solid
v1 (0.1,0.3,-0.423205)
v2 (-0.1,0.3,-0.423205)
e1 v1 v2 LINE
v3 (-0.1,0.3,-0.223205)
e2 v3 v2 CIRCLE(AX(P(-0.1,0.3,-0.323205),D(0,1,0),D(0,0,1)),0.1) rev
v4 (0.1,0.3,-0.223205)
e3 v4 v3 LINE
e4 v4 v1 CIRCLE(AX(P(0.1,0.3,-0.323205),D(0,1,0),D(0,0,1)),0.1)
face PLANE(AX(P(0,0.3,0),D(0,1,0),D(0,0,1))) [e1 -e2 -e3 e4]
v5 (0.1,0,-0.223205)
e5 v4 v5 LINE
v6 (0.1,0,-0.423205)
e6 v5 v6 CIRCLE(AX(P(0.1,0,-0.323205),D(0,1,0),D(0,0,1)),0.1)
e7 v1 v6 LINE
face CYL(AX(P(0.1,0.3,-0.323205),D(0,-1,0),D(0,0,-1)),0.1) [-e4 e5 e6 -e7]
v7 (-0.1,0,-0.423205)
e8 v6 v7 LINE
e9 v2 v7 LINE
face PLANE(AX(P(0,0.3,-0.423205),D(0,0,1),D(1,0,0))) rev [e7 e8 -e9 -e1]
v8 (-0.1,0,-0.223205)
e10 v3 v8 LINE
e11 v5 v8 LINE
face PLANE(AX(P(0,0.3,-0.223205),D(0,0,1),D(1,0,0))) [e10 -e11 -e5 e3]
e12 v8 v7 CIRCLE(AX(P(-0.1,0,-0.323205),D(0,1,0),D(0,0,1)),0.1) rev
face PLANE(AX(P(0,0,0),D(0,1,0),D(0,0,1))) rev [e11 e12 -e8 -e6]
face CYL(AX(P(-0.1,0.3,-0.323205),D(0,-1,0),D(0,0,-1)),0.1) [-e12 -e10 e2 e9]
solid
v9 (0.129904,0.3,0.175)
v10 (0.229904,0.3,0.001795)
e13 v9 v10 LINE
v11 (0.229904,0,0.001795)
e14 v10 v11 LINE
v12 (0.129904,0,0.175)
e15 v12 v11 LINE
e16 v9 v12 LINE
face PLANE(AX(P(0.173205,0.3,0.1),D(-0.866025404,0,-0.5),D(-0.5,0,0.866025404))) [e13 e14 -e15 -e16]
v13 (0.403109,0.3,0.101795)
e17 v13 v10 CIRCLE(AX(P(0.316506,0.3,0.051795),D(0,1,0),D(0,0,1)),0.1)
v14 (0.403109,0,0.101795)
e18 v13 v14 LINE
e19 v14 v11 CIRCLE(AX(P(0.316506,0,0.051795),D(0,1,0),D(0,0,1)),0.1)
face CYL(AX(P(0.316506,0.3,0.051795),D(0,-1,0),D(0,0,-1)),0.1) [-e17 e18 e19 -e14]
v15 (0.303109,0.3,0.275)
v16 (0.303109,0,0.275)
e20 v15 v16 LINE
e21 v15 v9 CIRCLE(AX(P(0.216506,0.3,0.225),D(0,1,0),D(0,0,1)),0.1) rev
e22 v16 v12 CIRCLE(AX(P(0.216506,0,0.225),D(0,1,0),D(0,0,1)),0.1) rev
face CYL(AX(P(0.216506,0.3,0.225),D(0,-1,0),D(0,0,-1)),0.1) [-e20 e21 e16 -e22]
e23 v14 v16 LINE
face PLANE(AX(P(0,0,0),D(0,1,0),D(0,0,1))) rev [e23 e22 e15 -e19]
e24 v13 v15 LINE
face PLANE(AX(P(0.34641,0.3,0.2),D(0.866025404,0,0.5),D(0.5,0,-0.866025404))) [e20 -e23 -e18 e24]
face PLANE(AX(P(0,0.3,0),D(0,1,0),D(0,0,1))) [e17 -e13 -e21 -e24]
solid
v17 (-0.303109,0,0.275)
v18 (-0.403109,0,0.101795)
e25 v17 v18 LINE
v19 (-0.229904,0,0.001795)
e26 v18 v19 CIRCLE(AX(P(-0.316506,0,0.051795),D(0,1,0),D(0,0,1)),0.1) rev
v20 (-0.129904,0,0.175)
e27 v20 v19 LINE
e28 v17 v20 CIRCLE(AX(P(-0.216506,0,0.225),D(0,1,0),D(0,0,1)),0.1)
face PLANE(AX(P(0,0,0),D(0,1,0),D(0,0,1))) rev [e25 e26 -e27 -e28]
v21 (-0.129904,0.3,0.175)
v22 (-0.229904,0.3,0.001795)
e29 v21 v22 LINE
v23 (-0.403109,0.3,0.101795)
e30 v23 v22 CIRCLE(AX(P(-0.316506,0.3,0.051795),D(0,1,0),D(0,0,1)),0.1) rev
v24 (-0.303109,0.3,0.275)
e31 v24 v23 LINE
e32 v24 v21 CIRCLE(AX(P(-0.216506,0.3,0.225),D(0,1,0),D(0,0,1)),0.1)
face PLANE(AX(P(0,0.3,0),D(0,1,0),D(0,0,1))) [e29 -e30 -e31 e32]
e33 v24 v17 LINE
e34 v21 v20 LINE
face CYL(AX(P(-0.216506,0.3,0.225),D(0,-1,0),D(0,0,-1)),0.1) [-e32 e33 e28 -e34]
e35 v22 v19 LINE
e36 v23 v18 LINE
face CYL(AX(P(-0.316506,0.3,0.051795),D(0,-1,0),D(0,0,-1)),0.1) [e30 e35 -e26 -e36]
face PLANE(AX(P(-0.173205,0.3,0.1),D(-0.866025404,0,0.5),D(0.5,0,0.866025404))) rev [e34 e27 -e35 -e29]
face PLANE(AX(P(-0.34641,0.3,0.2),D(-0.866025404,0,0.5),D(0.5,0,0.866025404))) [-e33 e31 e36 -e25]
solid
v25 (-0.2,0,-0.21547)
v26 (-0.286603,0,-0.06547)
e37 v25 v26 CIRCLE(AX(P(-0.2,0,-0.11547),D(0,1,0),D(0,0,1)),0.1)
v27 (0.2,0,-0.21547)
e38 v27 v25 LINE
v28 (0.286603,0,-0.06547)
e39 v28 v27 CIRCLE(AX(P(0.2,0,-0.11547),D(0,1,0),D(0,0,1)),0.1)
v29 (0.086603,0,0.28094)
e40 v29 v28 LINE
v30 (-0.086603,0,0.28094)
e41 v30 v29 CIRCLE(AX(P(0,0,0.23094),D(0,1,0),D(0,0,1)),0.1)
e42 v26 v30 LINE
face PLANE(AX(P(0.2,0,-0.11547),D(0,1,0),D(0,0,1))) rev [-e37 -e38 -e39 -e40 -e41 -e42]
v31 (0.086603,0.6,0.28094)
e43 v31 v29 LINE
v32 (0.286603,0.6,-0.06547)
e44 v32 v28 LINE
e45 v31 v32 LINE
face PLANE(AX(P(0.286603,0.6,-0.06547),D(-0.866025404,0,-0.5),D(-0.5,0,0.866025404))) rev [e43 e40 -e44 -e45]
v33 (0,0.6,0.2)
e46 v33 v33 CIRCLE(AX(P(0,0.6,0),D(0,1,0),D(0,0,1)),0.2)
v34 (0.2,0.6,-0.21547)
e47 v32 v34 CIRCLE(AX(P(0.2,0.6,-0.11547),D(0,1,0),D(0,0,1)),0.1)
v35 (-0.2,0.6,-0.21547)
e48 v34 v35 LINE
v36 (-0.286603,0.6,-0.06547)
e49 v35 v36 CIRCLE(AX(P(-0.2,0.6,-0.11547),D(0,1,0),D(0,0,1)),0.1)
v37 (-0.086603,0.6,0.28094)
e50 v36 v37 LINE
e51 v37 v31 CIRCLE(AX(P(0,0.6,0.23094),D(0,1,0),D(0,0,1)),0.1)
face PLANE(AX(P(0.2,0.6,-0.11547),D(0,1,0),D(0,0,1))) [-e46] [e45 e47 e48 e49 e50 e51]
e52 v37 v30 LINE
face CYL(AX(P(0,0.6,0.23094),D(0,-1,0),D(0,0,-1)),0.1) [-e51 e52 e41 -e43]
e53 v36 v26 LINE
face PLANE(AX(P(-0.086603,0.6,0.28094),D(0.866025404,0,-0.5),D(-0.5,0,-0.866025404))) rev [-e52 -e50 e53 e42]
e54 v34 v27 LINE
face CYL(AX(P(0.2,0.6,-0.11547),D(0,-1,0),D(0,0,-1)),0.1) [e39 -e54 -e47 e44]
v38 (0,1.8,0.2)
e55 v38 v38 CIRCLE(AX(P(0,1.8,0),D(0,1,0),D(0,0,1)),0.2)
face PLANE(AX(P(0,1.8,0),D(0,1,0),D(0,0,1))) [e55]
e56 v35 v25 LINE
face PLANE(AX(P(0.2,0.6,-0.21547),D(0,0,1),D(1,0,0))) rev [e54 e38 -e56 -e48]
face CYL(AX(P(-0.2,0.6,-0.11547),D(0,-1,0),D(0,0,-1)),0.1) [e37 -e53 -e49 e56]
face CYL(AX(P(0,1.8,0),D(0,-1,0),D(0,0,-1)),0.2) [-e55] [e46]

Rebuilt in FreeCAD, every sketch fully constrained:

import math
import FreeCAD as App
import Part
import Sketcher
from FreeCAD import Vector
Q = App.Units.Quantity

doc = App.newDocument("Part")
body = doc.addObject("PartDesign::Body", "Body")

# Sketch on XZ plane
sketch1 = body.newObject("Sketcher::SketchObject", "Sketch")
sketch1.AttachmentSupport = (doc.getObject("XZ_Plane"), [""])
sketch1.MapMode = "FlatFace"
sketch1.addGeometry([
    Part.LineSegment(Vector(0.09, 0.28, 0), Vector(0.29, -0.07, 0)),  # 0
    Part.ArcOfCircle(Part.Circle(Vector(0.2, -0.12, 0), Vector(0, 0, 1), 0.1), math.radians(-90), math.radians(30)),  # 1
    Part.LineSegment(Vector(0.2, -0.22, 0), Vector(-0.2, -0.22, 0)),  # 2
    Part.ArcOfCircle(Part.Circle(Vector(-0.2, -0.12, 0), Vector(0, 0, 1), 0.1), math.radians(150), math.radians(270)),  # 3
    Part.LineSegment(Vector(-0.29, -0.07, 0), Vector(-0.09, 0.28, 0)),  # 4
    Part.ArcOfCircle(Part.Circle(Vector(0, 0.23, 0), Vector(0, 0, 1), 0.1), math.radians(30), math.radians(150)),  # 5
], False)
sketch1.addConstraint([
    Sketcher.Constraint("Tangent", 0, 2, 1, 2),
    Sketcher.Constraint("Tangent", 1, 1, 2, 1),
    Sketcher.Constraint("Tangent", 2, 2, 3, 2),
    Sketcher.Constraint("Tangent", 3, 1, 4, 1),
    Sketcher.Constraint("Tangent", 4, 2, 5, 2),
    Sketcher.Constraint("Tangent", 5, 1, 0, 1),
    Sketcher.Constraint("Horizontal", 2),
    Sketcher.Constraint("Equal", 1, 3),
    Sketcher.Constraint("Equal", 3, 5),
    Sketcher.Constraint("Symmetric", 0, 2, 3, 1, -2),
    Sketcher.Constraint("Radius", 1, Q("0.1 mm")),
    Sketcher.Constraint("Angle", 0, Q("-60 deg")),
    Sketcher.Constraint("DistanceX", 2, 2, 2, 1, Q("0.4 mm")),
    Sketcher.Constraint("DistanceY", 1, 3, -1, 1, Q("0.11547 mm")),
])
pad1 = body.newObject("PartDesign::Pad", "Pad")
pad1.Profile = sketch1
pad1.Length = 0.6
pad1.Reversed = True

# Sketch on XZ plane
sketch2 = body.newObject("Sketcher::SketchObject", "Sketch001")
sketch2.AttachmentSupport = (doc.getObject("XZ_Plane"), [""])
sketch2.MapMode = "FlatFace"
sketch2.AttachmentOffset = App.Placement(Vector(0, 0, -0.6), App.Rotation())
sketch2.addGeometry(Part.Circle(Vector(0, 0, 0), Vector(0, 0, 1), 0.2), False)
sketch2.addConstraint([
    Sketcher.Constraint("Coincident", 0, 3, -1, 1),
    Sketcher.Constraint("Diameter", 0, Q("0.4 mm")),
])
pad2 = body.newObject("PartDesign::Pad", "Pad001")
pad2.Profile = sketch2
pad2.Length = 1.2
pad2.Reversed = True
body2 = doc.addObject("PartDesign::Body", "Body001")

# Sketch on XZ plane
sketch3 = body2.newObject("Sketcher::SketchObject", "Sketch002")
sketch3.AttachmentSupport = (doc.getObject("XZ_Plane001"), [""])
sketch3.MapMode = "FlatFace"
sketch3.addGeometry([
    Part.LineSegment(Vector(0.3, 0.28, 0), Vector(0.4, 0.1, 0)),
    Part.ArcOfCircle(Part.Circle(Vector(0.32, 0.05, 0), Vector(0, 0, 1), 0.1), math.radians(-150), math.radians(30)),
    Part.LineSegment(Vector(0.23, 0, 0), Vector(0.13, 0.17, 0)),
    Part.ArcOfCircle(Part.Circle(Vector(0.22, 0.23, 0), Vector(0, 0, 1), 0.1), math.radians(30), math.radians(210)),
], False)
sketch3.addConstraint([
    Sketcher.Constraint("Tangent", 0, 2, 1, 2),
    Sketcher.Constraint("Tangent", 1, 1, 2, 1),
    Sketcher.Constraint("Tangent", 2, 2, 3, 2),
    Sketcher.Constraint("Tangent", 3, 1, 0, 1),
    Sketcher.Constraint("Equal", 1, 3),
    Sketcher.Constraint("Radius", 1, Q("0.1 mm")),
    Sketcher.Constraint("Angle", 0, Q("-60 deg")),
    Sketcher.Constraint("Distance", 0, Q("0.2 mm")),
    Sketcher.Constraint("DistanceY", -1, 1, 3, 3, Q("0.225 mm")),
    Sketcher.Constraint("DistanceX", -1, 1, 0, 2, Q("0.403109 mm")),
])
pad3 = body2.newObject("PartDesign::Pad", "Pad002")
pad3.Profile = sketch3
pad3.Length = 0.3
pad3.Reversed = True
body3 = doc.addObject("PartDesign::Body", "Body002")

# Sketch on XZ plane
sketch4 = body3.newObject("Sketcher::SketchObject", "Sketch003")
sketch4.AttachmentSupport = (doc.getObject("XZ_Plane002"), [""])
sketch4.MapMode = "FlatFace"
sketch4.addGeometry([
    Part.LineSegment(Vector(0.1, -0.42, 0), Vector(-0.1, -0.42, 0)),
    Part.ArcOfCircle(Part.Circle(Vector(-0.1, -0.32, 0), Vector(0, 0, 1), 0.1), math.radians(90), math.radians(270)),
    Part.LineSegment(Vector(-0.1, -0.22, 0), Vector(0.1, -0.22, 0)),
    Part.ArcOfCircle(Part.Circle(Vector(0.1, -0.32, 0), Vector(0, 0, 1), 0.1), math.radians(-90), math.radians(90)),
], False)
sketch4.addConstraint([
    Sketcher.Constraint("Tangent", 0, 2, 1, 2),
    Sketcher.Constraint("Tangent", 1, 1, 2, 1),
    Sketcher.Constraint("Tangent", 2, 2, 3, 2),
    Sketcher.Constraint("Tangent", 3, 1, 0, 1),
    Sketcher.Constraint("Horizontal", 0),
    Sketcher.Constraint("Horizontal", 2),
    Sketcher.Constraint("Radius", 1, Q("0.1 mm")),
    Sketcher.Constraint("DistanceX", 0, 2, 0, 1, Q("0.2 mm")),
    Sketcher.Constraint("DistanceX", 1, 3, -1, 1, Q("0.1 mm")),
    Sketcher.Constraint("DistanceY", 1, 3, -1, 1, Q("0.323205 mm")),
])
pad4 = body3.newObject("PartDesign::Pad", "Pad003")
pad4.Profile = sketch4
pad4.Length = 0.3
pad4.Reversed = True
body4 = doc.addObject("PartDesign::Body", "Body003")

# Sketch on XZ plane
sketch5 = body4.newObject("Sketcher::SketchObject", "Sketch004")
sketch5.AttachmentSupport = (doc.getObject("XZ_Plane003"), [""])
sketch5.MapMode = "FlatFace"
sketch5.addGeometry([
    Part.LineSegment(Vector(-0.4, 0.1, 0), Vector(-0.3, 0.28, 0)),
    Part.ArcOfCircle(Part.Circle(Vector(-0.22, 0.23, 0), Vector(0, 0, 1), 0.1), math.radians(-30), math.radians(150)),
    Part.LineSegment(Vector(-0.13, 0.17, 0), Vector(-0.23, 0, 0)),
    Part.ArcOfCircle(Part.Circle(Vector(-0.32, 0.05, 0), Vector(0, 0, 1), 0.1), math.radians(150), math.radians(330)),
], False)
sketch5.addConstraint([
    Sketcher.Constraint("Tangent", 0, 2, 1, 2),
    Sketcher.Constraint("Tangent", 1, 1, 2, 1),
    Sketcher.Constraint("Tangent", 2, 2, 3, 2),
    Sketcher.Constraint("Tangent", 3, 1, 0, 1),
    Sketcher.Constraint("Equal", 1, 3),
    Sketcher.Constraint("Radius", 1, Q("0.1 mm")),
    Sketcher.Constraint("Angle", 0, Q("60 deg")),
    Sketcher.Constraint("Distance", 0, Q("0.2 mm")),
    Sketcher.Constraint("DistanceY", -1, 1, 1, 3, Q("0.225 mm")),
    Sketcher.Constraint("DistanceX", 0, 2, -1, 1, Q("0.303109 mm")),
])
pad5 = body4.newObject("PartDesign::Pad", "Pad004")
pad5.Profile = sketch5
pad5.Length = 0.3
pad5.Reversed = True

doc.recompute()
